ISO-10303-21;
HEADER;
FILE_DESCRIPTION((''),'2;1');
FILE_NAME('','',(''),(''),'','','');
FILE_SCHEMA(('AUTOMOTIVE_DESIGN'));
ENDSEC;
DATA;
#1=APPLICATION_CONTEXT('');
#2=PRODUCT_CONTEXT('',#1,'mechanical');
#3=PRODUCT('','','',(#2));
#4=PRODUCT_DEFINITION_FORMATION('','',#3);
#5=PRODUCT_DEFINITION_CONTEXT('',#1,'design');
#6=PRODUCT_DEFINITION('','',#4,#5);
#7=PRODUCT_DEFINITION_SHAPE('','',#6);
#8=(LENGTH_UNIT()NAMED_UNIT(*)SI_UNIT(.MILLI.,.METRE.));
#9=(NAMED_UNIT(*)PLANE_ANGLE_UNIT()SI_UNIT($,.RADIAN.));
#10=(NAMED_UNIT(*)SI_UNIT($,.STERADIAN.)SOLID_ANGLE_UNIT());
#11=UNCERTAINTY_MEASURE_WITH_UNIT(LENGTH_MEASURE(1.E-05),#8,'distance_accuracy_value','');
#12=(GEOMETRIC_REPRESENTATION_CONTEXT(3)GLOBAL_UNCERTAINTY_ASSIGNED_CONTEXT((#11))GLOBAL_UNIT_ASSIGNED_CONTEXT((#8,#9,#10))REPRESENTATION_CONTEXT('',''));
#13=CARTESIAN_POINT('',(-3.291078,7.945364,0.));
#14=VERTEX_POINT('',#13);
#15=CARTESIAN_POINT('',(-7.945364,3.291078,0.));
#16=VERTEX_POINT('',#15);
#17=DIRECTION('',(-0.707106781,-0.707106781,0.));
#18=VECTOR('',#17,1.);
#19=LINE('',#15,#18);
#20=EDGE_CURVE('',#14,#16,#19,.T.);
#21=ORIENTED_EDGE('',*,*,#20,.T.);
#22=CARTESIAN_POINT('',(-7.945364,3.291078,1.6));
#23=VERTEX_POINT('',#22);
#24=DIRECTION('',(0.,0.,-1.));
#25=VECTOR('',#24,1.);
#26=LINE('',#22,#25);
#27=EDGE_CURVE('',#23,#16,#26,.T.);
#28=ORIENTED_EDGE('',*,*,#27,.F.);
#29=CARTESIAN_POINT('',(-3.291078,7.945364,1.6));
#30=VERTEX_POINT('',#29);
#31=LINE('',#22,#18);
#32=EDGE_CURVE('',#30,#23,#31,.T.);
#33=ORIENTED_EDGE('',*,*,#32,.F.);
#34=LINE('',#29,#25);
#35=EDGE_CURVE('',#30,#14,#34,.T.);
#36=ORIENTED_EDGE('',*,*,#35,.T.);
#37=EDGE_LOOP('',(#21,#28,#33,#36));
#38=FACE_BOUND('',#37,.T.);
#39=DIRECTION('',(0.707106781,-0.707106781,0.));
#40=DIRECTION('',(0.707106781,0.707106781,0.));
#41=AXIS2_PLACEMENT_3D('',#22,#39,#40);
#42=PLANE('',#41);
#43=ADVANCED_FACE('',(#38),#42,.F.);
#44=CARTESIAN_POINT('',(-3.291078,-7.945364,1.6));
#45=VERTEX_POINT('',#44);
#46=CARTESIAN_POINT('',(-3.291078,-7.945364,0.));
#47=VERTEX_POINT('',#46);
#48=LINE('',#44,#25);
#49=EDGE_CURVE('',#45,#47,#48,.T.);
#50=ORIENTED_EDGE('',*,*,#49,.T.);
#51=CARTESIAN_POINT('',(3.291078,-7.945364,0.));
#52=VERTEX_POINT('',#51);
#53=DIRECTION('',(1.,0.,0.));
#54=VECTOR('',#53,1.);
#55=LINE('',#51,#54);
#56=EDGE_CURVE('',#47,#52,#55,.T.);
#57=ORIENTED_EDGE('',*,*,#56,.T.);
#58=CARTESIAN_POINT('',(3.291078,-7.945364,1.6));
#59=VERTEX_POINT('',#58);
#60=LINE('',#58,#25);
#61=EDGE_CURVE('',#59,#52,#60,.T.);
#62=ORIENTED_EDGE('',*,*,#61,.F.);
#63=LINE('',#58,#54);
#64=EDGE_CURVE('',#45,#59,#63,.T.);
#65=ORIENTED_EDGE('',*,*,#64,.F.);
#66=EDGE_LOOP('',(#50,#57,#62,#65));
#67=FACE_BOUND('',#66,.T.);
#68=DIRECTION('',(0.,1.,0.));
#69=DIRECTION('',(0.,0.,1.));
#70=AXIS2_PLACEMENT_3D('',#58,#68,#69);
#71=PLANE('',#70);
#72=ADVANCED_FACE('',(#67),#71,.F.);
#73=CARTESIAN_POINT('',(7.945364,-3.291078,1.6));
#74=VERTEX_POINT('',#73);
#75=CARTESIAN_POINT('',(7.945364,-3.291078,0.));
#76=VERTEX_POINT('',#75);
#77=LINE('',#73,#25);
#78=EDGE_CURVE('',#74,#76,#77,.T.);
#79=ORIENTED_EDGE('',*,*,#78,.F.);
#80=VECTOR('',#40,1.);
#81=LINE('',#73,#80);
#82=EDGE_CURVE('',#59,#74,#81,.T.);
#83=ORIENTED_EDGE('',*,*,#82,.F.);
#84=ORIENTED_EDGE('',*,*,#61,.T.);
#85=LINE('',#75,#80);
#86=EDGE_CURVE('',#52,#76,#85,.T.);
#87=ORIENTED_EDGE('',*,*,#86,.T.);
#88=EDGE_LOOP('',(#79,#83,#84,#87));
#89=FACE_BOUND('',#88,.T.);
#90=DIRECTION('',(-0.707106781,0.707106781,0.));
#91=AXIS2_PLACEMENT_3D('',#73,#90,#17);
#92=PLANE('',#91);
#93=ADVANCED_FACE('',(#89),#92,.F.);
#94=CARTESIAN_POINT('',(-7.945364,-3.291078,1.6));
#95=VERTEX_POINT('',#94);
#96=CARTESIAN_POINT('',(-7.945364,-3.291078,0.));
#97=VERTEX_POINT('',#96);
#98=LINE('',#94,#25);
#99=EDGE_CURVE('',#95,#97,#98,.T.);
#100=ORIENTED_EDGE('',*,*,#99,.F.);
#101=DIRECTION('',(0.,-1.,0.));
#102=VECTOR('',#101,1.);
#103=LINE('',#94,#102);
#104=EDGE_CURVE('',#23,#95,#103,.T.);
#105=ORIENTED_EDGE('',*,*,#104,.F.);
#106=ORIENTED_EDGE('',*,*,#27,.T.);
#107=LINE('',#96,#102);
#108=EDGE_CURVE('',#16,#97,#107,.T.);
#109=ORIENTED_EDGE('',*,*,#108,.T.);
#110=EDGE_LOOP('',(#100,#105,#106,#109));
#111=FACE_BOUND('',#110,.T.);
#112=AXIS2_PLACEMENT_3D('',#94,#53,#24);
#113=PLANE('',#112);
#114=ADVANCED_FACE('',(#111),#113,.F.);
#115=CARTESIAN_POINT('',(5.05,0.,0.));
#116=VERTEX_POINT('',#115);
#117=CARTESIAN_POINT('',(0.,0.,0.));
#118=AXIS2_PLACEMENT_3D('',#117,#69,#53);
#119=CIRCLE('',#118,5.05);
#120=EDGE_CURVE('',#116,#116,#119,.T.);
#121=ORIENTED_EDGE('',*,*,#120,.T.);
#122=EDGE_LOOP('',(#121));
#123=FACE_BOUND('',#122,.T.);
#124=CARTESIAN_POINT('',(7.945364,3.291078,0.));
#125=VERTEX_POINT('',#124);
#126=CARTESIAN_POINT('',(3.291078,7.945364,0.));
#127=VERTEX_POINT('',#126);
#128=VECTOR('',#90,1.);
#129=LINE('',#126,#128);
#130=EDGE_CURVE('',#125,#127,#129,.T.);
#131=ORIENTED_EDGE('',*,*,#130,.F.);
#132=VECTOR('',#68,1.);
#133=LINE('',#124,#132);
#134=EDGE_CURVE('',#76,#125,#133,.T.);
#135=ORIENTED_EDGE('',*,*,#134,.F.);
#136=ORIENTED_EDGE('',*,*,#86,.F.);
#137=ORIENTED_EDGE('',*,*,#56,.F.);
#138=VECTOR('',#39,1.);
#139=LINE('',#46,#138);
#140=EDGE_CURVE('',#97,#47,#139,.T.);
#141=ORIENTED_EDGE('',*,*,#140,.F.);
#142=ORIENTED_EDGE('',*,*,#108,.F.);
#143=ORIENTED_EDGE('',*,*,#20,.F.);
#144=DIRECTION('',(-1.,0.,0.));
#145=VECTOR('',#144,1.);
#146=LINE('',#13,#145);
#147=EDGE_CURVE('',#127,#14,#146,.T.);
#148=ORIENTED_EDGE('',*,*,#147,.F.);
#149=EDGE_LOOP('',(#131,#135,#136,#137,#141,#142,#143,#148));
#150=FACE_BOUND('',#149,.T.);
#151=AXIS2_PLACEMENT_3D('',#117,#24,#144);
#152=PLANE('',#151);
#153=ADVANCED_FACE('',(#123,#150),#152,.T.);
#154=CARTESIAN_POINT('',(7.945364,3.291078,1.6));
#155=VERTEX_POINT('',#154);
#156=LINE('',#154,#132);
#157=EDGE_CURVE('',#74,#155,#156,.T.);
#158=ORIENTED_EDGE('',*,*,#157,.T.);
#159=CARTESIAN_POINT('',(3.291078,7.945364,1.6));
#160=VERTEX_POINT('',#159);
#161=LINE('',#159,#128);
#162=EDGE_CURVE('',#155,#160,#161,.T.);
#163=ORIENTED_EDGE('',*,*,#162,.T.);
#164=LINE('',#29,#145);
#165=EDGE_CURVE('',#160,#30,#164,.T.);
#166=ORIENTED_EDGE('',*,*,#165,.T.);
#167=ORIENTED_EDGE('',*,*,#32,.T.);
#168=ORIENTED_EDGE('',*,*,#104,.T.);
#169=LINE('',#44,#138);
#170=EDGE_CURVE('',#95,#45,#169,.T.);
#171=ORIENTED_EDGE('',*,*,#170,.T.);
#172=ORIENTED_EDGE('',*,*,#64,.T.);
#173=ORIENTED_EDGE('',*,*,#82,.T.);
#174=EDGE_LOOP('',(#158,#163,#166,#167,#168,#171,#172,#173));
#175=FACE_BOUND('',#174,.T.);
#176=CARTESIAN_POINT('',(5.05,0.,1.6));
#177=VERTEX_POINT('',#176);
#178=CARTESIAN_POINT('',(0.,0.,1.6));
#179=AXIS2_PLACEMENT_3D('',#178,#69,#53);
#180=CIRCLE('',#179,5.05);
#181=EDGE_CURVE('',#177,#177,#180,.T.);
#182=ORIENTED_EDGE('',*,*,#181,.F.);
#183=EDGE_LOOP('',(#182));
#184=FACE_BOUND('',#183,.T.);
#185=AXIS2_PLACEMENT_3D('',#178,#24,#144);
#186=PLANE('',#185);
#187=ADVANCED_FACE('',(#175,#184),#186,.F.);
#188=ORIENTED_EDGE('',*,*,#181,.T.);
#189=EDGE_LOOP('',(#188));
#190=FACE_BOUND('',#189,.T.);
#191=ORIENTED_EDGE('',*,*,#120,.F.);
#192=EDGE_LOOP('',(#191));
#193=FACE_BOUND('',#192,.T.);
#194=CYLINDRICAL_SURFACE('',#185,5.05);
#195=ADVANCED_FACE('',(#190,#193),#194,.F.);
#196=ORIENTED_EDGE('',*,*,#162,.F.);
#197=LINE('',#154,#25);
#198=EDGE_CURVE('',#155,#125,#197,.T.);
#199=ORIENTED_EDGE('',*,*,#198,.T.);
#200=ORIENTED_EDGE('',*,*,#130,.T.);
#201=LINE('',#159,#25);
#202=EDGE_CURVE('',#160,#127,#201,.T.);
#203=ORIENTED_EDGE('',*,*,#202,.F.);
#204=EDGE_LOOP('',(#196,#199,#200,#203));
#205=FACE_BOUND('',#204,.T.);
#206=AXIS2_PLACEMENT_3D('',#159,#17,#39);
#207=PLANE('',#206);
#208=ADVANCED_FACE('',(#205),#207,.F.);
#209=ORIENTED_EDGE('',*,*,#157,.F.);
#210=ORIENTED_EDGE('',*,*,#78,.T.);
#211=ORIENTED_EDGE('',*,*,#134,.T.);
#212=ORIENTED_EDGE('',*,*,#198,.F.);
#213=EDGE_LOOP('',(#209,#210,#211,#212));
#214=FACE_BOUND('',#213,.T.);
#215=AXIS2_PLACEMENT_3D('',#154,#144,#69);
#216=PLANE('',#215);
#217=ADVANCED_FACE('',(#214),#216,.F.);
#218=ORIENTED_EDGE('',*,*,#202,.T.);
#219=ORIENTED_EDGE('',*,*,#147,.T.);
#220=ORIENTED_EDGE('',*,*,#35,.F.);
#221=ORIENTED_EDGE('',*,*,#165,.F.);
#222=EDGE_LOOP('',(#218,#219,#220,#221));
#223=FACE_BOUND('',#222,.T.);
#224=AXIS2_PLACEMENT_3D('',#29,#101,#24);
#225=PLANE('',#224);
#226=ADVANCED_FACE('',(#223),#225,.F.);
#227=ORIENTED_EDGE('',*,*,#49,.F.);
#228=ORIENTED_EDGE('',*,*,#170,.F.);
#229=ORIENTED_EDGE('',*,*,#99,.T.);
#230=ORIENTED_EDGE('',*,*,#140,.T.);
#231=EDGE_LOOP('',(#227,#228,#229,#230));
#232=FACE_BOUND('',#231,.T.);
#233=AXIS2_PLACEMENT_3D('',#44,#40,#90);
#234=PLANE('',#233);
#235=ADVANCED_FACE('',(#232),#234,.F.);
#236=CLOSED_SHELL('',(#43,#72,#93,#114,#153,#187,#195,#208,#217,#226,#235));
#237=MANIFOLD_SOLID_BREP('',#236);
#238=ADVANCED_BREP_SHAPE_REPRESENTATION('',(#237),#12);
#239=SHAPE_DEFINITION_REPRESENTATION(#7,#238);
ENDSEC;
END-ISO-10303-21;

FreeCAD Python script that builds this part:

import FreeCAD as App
import Part
import Sketcher

doc = App.newDocument("Part")
body = doc.addObject("PartDesign::Body", "Body")

sketch1 = body.newObject("Sketcher::SketchObject", "Sketch")
sketch1.AttachmentSupport = (doc.getObject("XY_Plane"), [""])
sketch1.MapMode = "FlatFace"
sketch1.addGeometry([
    Part.LineSegment(App.Vector(3, 8, 0), App.Vector(-3, 8, 0)),
    Part.LineSegment(App.Vector(-3, 8, 0), App.Vector(-8, 3, 0)),
    Part.LineSegment(App.Vector(-8, 3, 0), App.Vector(-8, -3, 0)),
    Part.LineSegment(App.Vector(-8, -3, 0), App.Vector(-3, -8, 0)),
    Part.LineSegment(App.Vector(-3, -8, 0), App.Vector(3, -8, 0)),
    Part.LineSegment(App.Vector(3, -8, 0), App.Vector(8, -3, 0)),
    Part.LineSegment(App.Vector(8, -3, 0), App.Vector(8, 3, 0)),
    Part.LineSegment(App.Vector(8, 3, 0), App.Vector(3, 8, 0)),
    Part.Circle(App.Vector(0, 0, 0), App.Vector(0, 0, 1), 5),
], False)
sketch1.addConstraint([
    Sketcher.Constraint("Coincident", 0, 2, 1, 1),
    Sketcher.Constraint("Coincident", 1, 2, 2, 1),
    Sketcher.Constraint("Coincident", 2, 2, 3, 1),
    Sketcher.Constraint("Coincident", 3, 2, 4, 1),
    Sketcher.Constraint("Coincident", 4, 2, 5, 1),
    Sketcher.Constraint("Coincident", 5, 2, 6, 1),
    Sketcher.Constraint("Coincident", 6, 2, 7, 1),
    Sketcher.Constraint("Coincident", 7, 2, 0, 1),
    Sketcher.Constraint("Horizontal", 0),
    Sketcher.Constraint("Vertical", 2),
    Sketcher.Constraint("Horizontal", 4),
    Sketcher.Constraint("Vertical", 6),
    Sketcher.Constraint("Coincident", 8, 3, -1, 1),
    Sketcher.Constraint("Symmetric", 0, 2, 4, 2, -1, 1),
    Sketcher.Constraint("Symmetric", 1, 2, 5, 2, -1, 1),
    Sketcher.Constraint("Perpendicular", 1, 3),
    Sketcher.Constraint("Perpendicular", 5, 7),
    Sketcher.Constraint("Horizontal", 2, 2, 5, 2),
    Sketcher.Constraint("Horizontal", 1, 2, 6, 2),
    Sketcher.Constraint("Vertical", 0, 2, 3, 2),
    Sketcher.Constraint("Equal", 4, 2),
    Sketcher.Constraint("Diameter", 8, 10.1),
    Sketcher.Constraint("DistanceX", 0, 2, 0, 1, 6.582155),
    Sketcher.Constraint("DistanceY", 2, 2, 0, 2, 11.236441),
])
pad1 = body.newObject("PartDesign::Pad", "Pad")
pad1.Profile = sketch1
pad1.Length = 1.6

doc.recompute()
